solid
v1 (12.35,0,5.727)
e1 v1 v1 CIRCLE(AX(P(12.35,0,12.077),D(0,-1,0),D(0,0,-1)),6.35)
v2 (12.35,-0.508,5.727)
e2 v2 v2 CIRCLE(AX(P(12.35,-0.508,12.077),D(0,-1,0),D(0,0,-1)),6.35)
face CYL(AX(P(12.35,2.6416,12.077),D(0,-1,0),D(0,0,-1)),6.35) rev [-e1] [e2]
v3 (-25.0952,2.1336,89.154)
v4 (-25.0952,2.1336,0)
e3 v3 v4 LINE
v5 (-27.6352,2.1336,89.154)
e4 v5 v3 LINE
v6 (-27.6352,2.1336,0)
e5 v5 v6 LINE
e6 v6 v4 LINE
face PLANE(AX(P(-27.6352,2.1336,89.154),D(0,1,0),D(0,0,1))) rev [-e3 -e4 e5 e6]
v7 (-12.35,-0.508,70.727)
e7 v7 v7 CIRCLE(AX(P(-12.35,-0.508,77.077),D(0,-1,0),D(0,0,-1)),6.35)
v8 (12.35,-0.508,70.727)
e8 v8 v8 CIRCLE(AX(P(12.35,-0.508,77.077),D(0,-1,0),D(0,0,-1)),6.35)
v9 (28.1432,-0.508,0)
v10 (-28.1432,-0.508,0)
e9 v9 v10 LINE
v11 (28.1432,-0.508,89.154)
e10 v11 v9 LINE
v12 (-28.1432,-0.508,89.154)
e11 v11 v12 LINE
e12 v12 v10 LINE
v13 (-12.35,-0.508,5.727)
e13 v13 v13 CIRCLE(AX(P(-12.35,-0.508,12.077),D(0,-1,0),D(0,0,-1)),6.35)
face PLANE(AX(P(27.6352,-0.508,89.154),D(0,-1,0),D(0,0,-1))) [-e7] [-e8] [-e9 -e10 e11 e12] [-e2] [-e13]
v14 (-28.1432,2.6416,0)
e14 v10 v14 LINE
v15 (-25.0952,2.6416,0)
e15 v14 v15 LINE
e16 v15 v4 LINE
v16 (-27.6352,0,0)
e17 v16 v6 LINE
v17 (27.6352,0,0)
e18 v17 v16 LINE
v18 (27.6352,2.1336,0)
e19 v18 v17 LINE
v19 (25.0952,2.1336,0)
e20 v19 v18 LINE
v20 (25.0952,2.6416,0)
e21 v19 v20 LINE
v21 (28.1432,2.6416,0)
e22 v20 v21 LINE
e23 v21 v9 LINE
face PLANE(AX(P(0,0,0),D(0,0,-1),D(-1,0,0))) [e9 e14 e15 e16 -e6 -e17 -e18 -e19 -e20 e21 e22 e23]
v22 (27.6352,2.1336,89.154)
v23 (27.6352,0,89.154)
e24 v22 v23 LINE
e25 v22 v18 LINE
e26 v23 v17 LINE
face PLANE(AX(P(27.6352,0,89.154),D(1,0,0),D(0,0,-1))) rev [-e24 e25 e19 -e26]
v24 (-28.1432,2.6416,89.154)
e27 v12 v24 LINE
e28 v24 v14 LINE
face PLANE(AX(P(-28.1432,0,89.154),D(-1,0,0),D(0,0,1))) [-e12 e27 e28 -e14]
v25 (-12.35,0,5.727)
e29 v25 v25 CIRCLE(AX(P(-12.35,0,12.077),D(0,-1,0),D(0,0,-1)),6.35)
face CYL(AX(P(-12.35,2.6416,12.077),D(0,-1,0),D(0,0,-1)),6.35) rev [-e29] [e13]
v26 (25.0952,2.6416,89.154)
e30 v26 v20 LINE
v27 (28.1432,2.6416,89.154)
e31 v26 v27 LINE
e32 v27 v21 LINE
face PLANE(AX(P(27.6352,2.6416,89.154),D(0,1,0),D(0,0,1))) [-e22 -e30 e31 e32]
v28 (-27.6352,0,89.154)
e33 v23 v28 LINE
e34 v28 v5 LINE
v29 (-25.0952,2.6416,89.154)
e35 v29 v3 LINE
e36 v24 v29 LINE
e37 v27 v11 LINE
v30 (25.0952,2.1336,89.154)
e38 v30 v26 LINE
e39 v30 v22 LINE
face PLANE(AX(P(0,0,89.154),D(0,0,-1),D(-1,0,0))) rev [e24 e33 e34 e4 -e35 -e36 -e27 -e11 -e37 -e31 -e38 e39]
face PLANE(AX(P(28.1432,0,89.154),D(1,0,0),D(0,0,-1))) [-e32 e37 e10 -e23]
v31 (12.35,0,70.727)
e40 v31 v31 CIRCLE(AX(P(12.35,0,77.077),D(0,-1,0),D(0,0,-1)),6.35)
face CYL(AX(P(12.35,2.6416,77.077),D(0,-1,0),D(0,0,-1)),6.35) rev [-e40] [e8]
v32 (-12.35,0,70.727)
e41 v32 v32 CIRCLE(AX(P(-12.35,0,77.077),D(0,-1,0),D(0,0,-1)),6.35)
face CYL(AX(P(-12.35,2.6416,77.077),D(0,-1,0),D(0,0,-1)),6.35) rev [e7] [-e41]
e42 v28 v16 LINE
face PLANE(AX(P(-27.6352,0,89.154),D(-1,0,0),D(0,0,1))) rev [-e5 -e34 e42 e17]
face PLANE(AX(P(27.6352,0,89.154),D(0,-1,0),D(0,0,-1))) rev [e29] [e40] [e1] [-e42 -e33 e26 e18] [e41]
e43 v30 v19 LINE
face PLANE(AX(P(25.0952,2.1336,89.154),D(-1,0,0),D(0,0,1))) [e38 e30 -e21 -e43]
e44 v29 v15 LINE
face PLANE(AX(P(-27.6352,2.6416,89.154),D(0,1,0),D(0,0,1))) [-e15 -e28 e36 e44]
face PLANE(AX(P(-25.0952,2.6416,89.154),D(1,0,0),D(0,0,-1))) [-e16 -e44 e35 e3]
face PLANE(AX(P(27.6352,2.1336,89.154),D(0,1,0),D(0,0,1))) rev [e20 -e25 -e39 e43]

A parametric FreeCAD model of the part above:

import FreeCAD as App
import Part
import Sketcher
from FreeCAD import Vector
Q = App.Units.Quantity


def add_polygon(sketch, points):
    """Adds a closed chain of lines whose ends are joined by coincident constraints."""
    first, n = sketch.GeometryCount, len(points)
    for a, b in zip(points, points[1:] + points[:1]):
        sketch.addGeometry(Part.LineSegment(App.Vector(*a, 0), App.Vector(*b, 0)), False)
    for i in range(n):
        sketch.addConstraint(Sketcher.Constraint("Coincident", first + i, 2, first + (i + 1) % n, 1))

doc = App.newDocument("Part")
body = doc.addObject("PartDesign::Body", "Body")

sketch1 = body.newObject("Sketcher::SketchObject", "Sketch")
sketch1.AttachmentSupport = (doc.getObject("XY_Plane"), [""])
sketch1.MapMode = "FlatFace"
add_polygon(sketch1, [(25.1, 2.1), (27.6, 2.1), (27.6, 0), (-27.6, 0), (-27.6, 2.1), (-25.1, 2.1), (-25.1, 2.6), (-28.1, 2.6), (-28.1, -0.5), (28.1, -0.5), (28.1, 2.6), (25.1, 2.6)])
sketch1.addConstraint(Sketcher.Constraint("Horizontal", 0))
sketch1.addConstraint(Sketcher.Constraint("Vertical", 1))
sketch1.addConstraint(Sketcher.Constraint("Horizontal", 2))
sketch1.addConstraint(Sketcher.Constraint("Vertical", 3))
sketch1.addConstraint(Sketcher.Constraint("Horizontal", 4))
sketch1.addConstraint(Sketcher.Constraint("Vertical", 5))
sketch1.addConstraint(Sketcher.Constraint("Horizontal", 6))
sketch1.addConstraint(Sketcher.Constraint("Vertical", 7))
sketch1.addConstraint(Sketcher.Constraint("Horizontal", 8))
sketch1.addConstraint(Sketcher.Constraint("Vertical", 9))
sketch1.addConstraint(Sketcher.Constraint("Horizontal", 10))
sketch1.addConstraint(Sketcher.Constraint("Vertical", 11))
sketch1.addConstraint(Sketcher.Constraint("Symmetric", 1, 2, 2, 2, -1, 1))
sketch1.addConstraint(Sketcher.Constraint("Symmetric", 6, 2, 9, 2, -2))
sketch1.addConstraint(Sketcher.Constraint("Symmetric", 4, 2, 11, 2, -2))
sketch1.addConstraint(Sketcher.Constraint("DistanceX", 0, 1, 0, 2, Q("0.1 in")))
sketch1.addConstraint(Sketcher.Constraint("DistanceX", 6, 2, 6, 1, Q("0.12 in")))
sketch1.addConstraint(Sketcher.Constraint("DistanceY", 5, 1, 5, 2, Q("0.02 in")))
sketch1.addConstraint(Sketcher.Constraint("DistanceX", 2, 2, 2, 1, Q("2.176 in")))
sketch1.addConstraint(Sketcher.Constraint("DistanceY", 1, 2, 1, 1, Q("0.084 in")))
sketch1.addConstraint(Sketcher.Constraint("DistanceY", 7, 2, 7, 1, Q("0.124 in")))
pad1 = body.newObject("PartDesign::Pad", "Pad")
pad1.Profile = sketch1
pad1.Length = Q("3.51 in")

sketch2 = body.newObject("Sketcher::SketchObject", "Sketch001")
sketch2.AttachmentSupport = (doc.getObject("XZ_Plane"), [""])
sketch2.MapMode = "FlatFace"
sketch2.AttachmentOffset = App.Placement(Vector(0, 0, 0.02 * 25.4), App.Rotation())
sketch2.addGeometry(Part.Circle(Vector(12, 77, 0), Vector(0, 0, 1), 6), False)
sketch2.addGeometry(Part.Circle(Vector(-12, 77, 0), Vector(0, 0, 1), 6), False)
sketch2.addGeometry(Part.Circle(Vector(-12, 12, 0), Vector(0, 0, 1), 6), False)
sketch2.addGeometry(Part.Circle(Vector(12, 12, 0), Vector(0, 0, 1), 6), False)
sketch2.addConstraint(Sketcher.Constraint("Equal", 0, 1))
sketch2.addConstraint(Sketcher.Constraint("Equal", 1, 2))
sketch2.addConstraint(Sketcher.Constraint("Equal", 2, 3))
sketch2.addConstraint(Sketcher.Constraint("Symmetric", 0, 3, 1, 3, -2))
sketch2.addConstraint(Sketcher.Constraint("Symmetric", 2, 3, 3, 3, -2))
sketch2.addConstraint(Sketcher.Constraint("Vertical", 1, 3, 2, 3))
sketch2.addConstraint(Sketcher.Constraint("Diameter", 0, Q("0.5 in")))
sketch2.addConstraint(Sketcher.Constraint("DistanceX", -1, 1, 0, 3, Q("12.35 mm")))
sketch2.addConstraint(Sketcher.Constraint("DistanceY", -1, 1, 0, 3, Q("77.077 mm")))
sketch2.addConstraint(Sketcher.Constraint("DistanceY", -1, 1, 2, 3, Q("12.077 mm")))
pocket1 = body.newObject("PartDesign::Pocket", "Pocket")
pocket1.Profile = sketch2
pocket1.Type = "ThroughAll"
pocket1.Midplane = True

doc.recompute()
